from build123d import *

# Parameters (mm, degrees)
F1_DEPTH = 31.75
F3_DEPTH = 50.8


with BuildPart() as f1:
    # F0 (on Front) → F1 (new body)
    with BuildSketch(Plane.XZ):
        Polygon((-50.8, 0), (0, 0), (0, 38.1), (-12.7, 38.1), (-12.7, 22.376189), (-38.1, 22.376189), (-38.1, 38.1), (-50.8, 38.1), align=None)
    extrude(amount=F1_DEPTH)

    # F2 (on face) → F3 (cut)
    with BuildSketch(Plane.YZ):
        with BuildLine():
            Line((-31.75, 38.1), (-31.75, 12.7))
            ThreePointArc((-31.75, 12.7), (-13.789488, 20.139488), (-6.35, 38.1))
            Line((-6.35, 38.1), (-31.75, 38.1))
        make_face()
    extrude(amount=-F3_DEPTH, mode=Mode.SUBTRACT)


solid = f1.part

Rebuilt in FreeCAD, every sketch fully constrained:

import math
import FreeCAD as App
import Part
import Sketcher
from FreeCAD import Vector
Q = App.Units.Quantity


def add_polygon(sketch, points):
    """Adds a closed chain of lines whose ends are joined by coincident constraints."""
    first, n = sketch.GeometryCount, len(points)
    for a, b in zip(points, points[1:] + points[:1]):
        sketch.addGeometry(Part.LineSegment(App.Vector(*a, 0), App.Vector(*b, 0)), False)
    for i in range(n):
        sketch.addConstraint(Sketcher.Constraint("Coincident", first + i, 2, first + (i + 1) % n, 1))

doc = App.newDocument("Part")
body = doc.addObject("PartDesign::Body", "Body")

# Sketch on XZ plane
sketch1 = body.newObject("Sketcher::SketchObject", "Sketch")
sketch1.AttachmentSupport = (doc.getObject("XZ_Plane"), [""])
sketch1.MapMode = "FlatFace"
add_polygon(sketch1, [(-51, 0), (0, 0), (0, 38), (-13, 38), (-13, 22), (-38, 22), (-38, 38), (-51, 38)])  # lines 0-7
sketch1.addConstraint(Sketcher.Constraint("Horizontal", 0))
sketch1.addConstraint(Sketcher.Constraint("Vertical", 1))
sketch1.addConstraint(Sketcher.Constraint("Horizontal", 2))
sketch1.addConstraint(Sketcher.Constraint("Vertical", 3))
sketch1.addConstraint(Sketcher.Constraint("Horizontal", 4))
sketch1.addConstraint(Sketcher.Constraint("Vertical", 5))
sketch1.addConstraint(Sketcher.Constraint("Horizontal", 6))
sketch1.addConstraint(Sketcher.Constraint("Vertical", 7))
sketch1.addConstraint(Sketcher.Constraint("Coincident", 0, 2, -1, 1))
sketch1.addConstraint(Sketcher.Constraint("Horizontal", 2, 2, 5, 2))
sketch1.addConstraint(Sketcher.Constraint("Equal", 2, 6))
sketch1.addConstraint(Sketcher.Constraint("DistanceX", 0, 1, 0, 2, Q("2 in")))
sketch1.addConstraint(Sketcher.Constraint("DistanceX", 4, 2, 4, 1, Q("1 in")))
sketch1.addConstraint(Sketcher.Constraint("DistanceY", 1, 1, 1, 2, Q("1.5 in")))
sketch1.addConstraint(Sketcher.Constraint("DistanceY", 3, 2, 3, 1, 15.723811))
pad1 = body.newObject("PartDesign::Pad", "Pad")
pad1.Profile = sketch1
pad1.Length = Q("1.25 in")

# Sketch on YZ plane
sketch2 = body.newObject("Sketcher::SketchObject", "Sketch001")
sketch2.AttachmentSupport = (doc.getObject("YZ_Plane"), [""])
sketch2.MapMode = "FlatFace"
sketch2.addGeometry(Part.LineSegment(Vector(-32, 38, 0), Vector(-32, 13, 0)), False)
sketch2.addGeometry(Part.ArcOfCircle(Part.Circle(Vector(-32, 38, 0), Vector(0, 0, 1), 25), math.radians(-90), math.radians(0)), False)
sketch2.addGeometry(Part.LineSegment(Vector(-6, 38, 0), Vector(-32, 38, 0)), False)
sketch2.addConstraint(Sketcher.Constraint("Coincident", 0, 2, 1, 1))
sketch2.addConstraint(Sketcher.Constraint("Coincident", 1, 2, 2, 1))
sketch2.addConstraint(Sketcher.Constraint("Coincident", 2, 2, 0, 1))
sketch2.addConstraint(Sketcher.Constraint("Vertical", 0))
sketch2.addConstraint(Sketcher.Constraint("Horizontal", 2))
sketch2.addConstraint(Sketcher.Constraint("Coincident", 2, 2, 1, 3))
sketch2.addConstraint(Sketcher.Constraint("Radius", 1, Q("1 in")))
sketch2.addConstraint(Sketcher.Constraint("DistanceY", -1, 1, 1, 3, Q("1.5 in")))
sketch2.addConstraint(Sketcher.Constraint("DistanceX", 1, 3, -1, 1, Q("1.25 in")))
pocket1 = body.newObject("PartDesign::Pocket", "Pocket")
pocket1.Profile = sketch2
pocket1.Length = Q("2 in")

doc.recompute()
